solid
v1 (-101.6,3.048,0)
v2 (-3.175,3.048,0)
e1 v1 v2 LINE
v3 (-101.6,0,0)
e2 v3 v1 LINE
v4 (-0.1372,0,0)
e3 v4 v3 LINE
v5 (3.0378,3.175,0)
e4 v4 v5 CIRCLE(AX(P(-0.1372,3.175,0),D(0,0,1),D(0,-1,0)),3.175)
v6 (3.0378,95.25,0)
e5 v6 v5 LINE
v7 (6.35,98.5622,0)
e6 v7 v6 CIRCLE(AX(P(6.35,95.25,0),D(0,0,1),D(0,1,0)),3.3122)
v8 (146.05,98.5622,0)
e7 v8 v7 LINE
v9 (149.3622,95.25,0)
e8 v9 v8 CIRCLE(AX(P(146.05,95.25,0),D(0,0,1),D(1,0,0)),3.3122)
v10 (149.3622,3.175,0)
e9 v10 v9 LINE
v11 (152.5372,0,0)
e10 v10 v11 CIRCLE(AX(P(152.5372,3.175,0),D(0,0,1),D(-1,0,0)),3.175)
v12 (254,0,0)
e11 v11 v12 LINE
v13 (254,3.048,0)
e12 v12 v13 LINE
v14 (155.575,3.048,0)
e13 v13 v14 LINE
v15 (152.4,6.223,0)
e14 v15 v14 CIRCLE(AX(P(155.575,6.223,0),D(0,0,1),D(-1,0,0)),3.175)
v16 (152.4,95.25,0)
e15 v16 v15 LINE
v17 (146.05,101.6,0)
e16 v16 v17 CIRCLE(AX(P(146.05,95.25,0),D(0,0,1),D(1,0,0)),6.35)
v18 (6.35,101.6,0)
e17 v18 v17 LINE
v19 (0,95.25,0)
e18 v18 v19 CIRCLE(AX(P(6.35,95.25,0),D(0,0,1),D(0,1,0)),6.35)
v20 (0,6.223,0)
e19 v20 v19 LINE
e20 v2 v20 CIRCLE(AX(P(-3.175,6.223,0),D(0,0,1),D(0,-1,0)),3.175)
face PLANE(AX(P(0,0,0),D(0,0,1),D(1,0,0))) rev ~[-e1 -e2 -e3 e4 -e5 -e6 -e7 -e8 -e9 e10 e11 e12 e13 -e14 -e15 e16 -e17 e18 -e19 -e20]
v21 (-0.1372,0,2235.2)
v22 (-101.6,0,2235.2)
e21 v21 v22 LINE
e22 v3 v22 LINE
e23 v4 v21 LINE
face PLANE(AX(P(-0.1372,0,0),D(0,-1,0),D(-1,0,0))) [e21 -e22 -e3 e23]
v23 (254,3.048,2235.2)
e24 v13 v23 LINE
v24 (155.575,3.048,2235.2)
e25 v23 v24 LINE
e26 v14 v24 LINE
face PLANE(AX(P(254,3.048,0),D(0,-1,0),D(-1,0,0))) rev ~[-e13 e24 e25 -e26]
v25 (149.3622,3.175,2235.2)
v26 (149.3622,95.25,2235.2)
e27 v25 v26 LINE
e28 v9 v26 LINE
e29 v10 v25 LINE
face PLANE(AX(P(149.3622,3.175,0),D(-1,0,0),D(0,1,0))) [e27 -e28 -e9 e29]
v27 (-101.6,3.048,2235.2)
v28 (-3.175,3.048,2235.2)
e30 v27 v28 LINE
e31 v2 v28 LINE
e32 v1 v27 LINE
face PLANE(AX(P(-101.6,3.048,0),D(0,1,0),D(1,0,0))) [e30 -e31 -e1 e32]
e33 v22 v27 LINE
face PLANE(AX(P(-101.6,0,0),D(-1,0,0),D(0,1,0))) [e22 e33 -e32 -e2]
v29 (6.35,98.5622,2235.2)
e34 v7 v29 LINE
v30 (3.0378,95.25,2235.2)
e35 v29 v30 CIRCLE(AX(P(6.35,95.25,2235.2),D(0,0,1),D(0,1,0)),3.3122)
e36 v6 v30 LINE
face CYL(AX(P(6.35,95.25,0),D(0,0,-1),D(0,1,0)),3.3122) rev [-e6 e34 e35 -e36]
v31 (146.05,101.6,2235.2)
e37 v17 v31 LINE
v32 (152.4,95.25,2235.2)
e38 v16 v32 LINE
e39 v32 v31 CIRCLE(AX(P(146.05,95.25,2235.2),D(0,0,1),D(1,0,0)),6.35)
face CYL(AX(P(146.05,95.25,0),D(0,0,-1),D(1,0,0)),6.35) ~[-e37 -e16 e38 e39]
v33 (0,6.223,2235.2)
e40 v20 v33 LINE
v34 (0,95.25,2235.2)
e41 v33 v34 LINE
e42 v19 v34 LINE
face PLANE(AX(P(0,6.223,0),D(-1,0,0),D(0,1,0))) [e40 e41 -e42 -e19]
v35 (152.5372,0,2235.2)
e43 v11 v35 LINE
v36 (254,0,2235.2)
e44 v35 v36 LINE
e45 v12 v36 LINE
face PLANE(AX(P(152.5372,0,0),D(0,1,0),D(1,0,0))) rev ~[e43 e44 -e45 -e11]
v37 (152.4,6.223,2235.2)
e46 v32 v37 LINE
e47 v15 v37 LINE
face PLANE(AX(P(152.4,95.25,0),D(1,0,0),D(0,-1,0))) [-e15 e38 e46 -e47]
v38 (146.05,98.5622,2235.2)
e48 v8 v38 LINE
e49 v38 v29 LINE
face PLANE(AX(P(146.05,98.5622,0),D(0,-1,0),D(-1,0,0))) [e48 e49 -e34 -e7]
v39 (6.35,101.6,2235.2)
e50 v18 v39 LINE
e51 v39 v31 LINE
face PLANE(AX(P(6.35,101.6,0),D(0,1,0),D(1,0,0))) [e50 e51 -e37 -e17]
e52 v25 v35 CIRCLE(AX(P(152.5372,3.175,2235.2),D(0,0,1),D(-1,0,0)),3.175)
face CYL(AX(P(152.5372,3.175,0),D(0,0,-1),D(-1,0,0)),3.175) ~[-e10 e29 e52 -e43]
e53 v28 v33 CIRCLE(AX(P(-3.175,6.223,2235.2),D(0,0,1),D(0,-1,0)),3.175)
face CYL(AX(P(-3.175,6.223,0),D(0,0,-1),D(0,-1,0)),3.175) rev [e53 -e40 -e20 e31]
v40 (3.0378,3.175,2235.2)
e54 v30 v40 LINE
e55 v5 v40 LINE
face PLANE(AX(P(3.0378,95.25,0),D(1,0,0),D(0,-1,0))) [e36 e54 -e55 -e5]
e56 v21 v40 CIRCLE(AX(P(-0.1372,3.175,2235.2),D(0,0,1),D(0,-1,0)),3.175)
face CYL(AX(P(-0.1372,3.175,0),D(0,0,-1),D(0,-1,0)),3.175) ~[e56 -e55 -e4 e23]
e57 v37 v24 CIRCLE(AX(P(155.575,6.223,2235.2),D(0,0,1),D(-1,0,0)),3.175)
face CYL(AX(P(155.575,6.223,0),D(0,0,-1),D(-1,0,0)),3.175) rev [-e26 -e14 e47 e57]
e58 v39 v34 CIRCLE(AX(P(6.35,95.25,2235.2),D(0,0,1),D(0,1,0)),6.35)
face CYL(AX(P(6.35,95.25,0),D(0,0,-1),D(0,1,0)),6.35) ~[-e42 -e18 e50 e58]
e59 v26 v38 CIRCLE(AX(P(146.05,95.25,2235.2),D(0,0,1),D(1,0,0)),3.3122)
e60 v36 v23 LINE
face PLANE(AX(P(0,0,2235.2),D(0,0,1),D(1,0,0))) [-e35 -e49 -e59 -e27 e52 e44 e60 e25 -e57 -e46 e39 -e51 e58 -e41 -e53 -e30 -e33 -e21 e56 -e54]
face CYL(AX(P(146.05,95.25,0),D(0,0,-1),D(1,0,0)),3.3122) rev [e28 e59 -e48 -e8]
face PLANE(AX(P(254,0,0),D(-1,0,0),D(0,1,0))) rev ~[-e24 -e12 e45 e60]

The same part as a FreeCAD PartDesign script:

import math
import FreeCAD as App
import Part
import Sketcher
Q = App.Units.Quantity

doc = App.newDocument("Part")
body = doc.addObject("PartDesign::Body", "Body")

# Sketch on XY plane
sketch1 = body.newObject("Sketcher::SketchObject", "Sketch")
sketch1.AttachmentSupport = (doc.getObject("XY_Plane"), [""])
sketch1.MapMode = "FlatFace"
sketch1.addGeometry(Part.LineSegment(App.Vector(0, 95.2, 0), App.Vector(0, 6.2, 0)), False)
sketch1.addGeometry(Part.ArcOfCircle(Part.Circle(App.Vector(-3.2, 6.2, 0), App.Vector(0, 0, 1), 3.2), math.radians(-90), math.radians(0)), False)
sketch1.addGeometry(Part.LineSegment(App.Vector(-3.2, 3, 0), App.Vector(-101.6, 3, 0)), False)
sketch1.addGeometry(Part.LineSegment(App.Vector(-101.6, 3, 0), App.Vector(-101.6, 0, 0)), False)
sketch1.addGeometry(Part.LineSegment(App.Vector(-101.6, 0, 0), App.Vector(-0.1, 0, 0)), False)
sketch1.addGeometry(Part.ArcOfCircle(Part.Circle(App.Vector(-0.1, 3.2, 0), App.Vector(0, 0, 1), 3.2), math.radians(-90), math.radians(0)), False)
sketch1.addGeometry(Part.LineSegment(App.Vector(3, 3.2, 0), App.Vector(3, 95.2, 0)), False)
sketch1.addGeometry(Part.ArcOfCircle(Part.Circle(App.Vector(6.3, 95.2, 0), App.Vector(0, 0, 1), 3.3), math.radians(90), math.radians(180)), False)
sketch1.addGeometry(Part.LineSegment(App.Vector(6.3, 98.6, 0), App.Vector(146.1, 98.6, 0)), False)
sketch1.addGeometry(Part.ArcOfCircle(Part.Circle(App.Vector(146.1, 95.2, 0), App.Vector(0, 0, 1), 3.3), math.radians(0), math.radians(90)), False)
sketch1.addGeometry(Part.LineSegment(App.Vector(149.4, 95.2, 0), App.Vector(149.4, 3.2, 0)), False)
sketch1.addGeometry(Part.ArcOfCircle(Part.Circle(App.Vector(152.5, 3.2, 0), App.Vector(0, 0, 1), 3.2), math.radians(180), math.radians(270)), False)
sketch1.addGeometry(Part.LineSegment(App.Vector(152.5, 0, 0), App.Vector(254, 0, 0)), False)
sketch1.addGeometry(Part.LineSegment(App.Vector(254, 0, 0), App.Vector(254, 3, 0)), False)
sketch1.addGeometry(Part.LineSegment(App.Vector(254, 3, 0), App.Vector(155.6, 3, 0)), False)
sketch1.addGeometry(Part.ArcOfCircle(Part.Circle(App.Vector(155.6, 6.2, 0), App.Vector(0, 0, 1), 3.2), math.radians(180), math.radians(270)), False)
sketch1.addGeometry(Part.LineSegment(App.Vector(152.4, 6.2, 0), App.Vector(152.4, 95.2, 0)), False)
sketch1.addGeometry(Part.ArcOfCircle(Part.Circle(App.Vector(146.1, 95.2, 0), App.Vector(0, 0, 1), 6.3), math.radians(0), math.radians(90)), False)
sketch1.addGeometry(Part.LineSegment(App.Vector(146.1, 101.6, 0), App.Vector(6.3, 101.6, 0)), False)
sketch1.addGeometry(Part.ArcOfCircle(Part.Circle(App.Vector(6.3, 95.2, 0), App.Vector(0, 0, 1), 6.3), math.radians(90), math.radians(180)), False)
sketch1.addConstraint(Sketcher.Constraint("Tangent", 0, 2, 1, 2))
sketch1.addConstraint(Sketcher.Constraint("Tangent", 1, 1, 2, 1))
sketch1.addConstraint(Sketcher.Constraint("Coincident", 2, 2, 3, 1))
sketch1.addConstraint(Sketcher.Constraint("Coincident", 3, 2, 4, 1))
sketch1.addConstraint(Sketcher.Constraint("Tangent", 4, 2, 5, 1))
sketch1.addConstraint(Sketcher.Constraint("Tangent", 5, 2, 6, 1))
sketch1.addConstraint(Sketcher.Constraint("Tangent", 6, 2, 7, 2))
sketch1.addConstraint(Sketcher.Constraint("Tangent", 7, 1, 8, 1))
sketch1.addConstraint(Sketcher.Constraint("Tangent", 8, 2, 9, 2))
sketch1.addConstraint(Sketcher.Constraint("Tangent", 9, 1, 10, 1))
sketch1.addConstraint(Sketcher.Constraint("Tangent", 10, 2, 11, 1))
sketch1.addConstraint(Sketcher.Constraint("Tangent", 11, 2, 12, 1))
sketch1.addConstraint(Sketcher.Constraint("Coincident", 12, 2, 13, 1))
sketch1.addConstraint(Sketcher.Constraint("Coincident", 13, 2, 14, 1))
sketch1.addConstraint(Sketcher.Constraint("Tangent", 14, 2, 15, 2))
sketch1.addConstraint(Sketcher.Constraint("Tangent", 15, 1, 16, 1))
sketch1.addConstraint(Sketcher.Constraint("Tangent", 16, 2, 17, 1))
sketch1.addConstraint(Sketcher.Constraint("Tangent", 17, 2, 18, 1))
sketch1.addConstraint(Sketcher.Constraint("Tangent", 18, 2, 19, 1))
sketch1.addConstraint(Sketcher.Constraint("Tangent", 19, 2, 0, 1))
sketch1.addConstraint(Sketcher.Constraint("Vertical", 0))
sketch1.addConstraint(Sketcher.Constraint("Horizontal", 2))
sketch1.addConstraint(Sketcher.Constraint("Vertical", 3))
sketch1.addConstraint(Sketcher.Constraint("Horizontal", 4))
sketch1.addConstraint(Sketcher.Constraint("Vertical", 6))
sketch1.addConstraint(Sketcher.Constraint("Horizontal", 8))
sketch1.addConstraint(Sketcher.Constraint("Vertical", 10))
sketch1.addConstraint(Sketcher.Constraint("Horizontal", 12))
sketch1.addConstraint(Sketcher.Constraint("Vertical", 13))
sketch1.addConstraint(Sketcher.Constraint("Horizontal", 14))
sketch1.addConstraint(Sketcher.Constraint("Vertical", 16))
sketch1.addConstraint(Sketcher.Constraint("Horizontal", 18))
sketch1.addConstraint(Sketcher.Constraint("Coincident", 17, 3, 9, 3))
sketch1.addConstraint(Sketcher.Constraint("Coincident", 19, 3, 7, 3))
sketch1.addConstraint(Sketcher.Constraint("Equal", 1, 5))
sketch1.addConstraint(Sketcher.Constraint("Equal", 7, 9))
sketch1.addConstraint(Sketcher.Constraint("Equal", 5, 11))
sketch1.addConstraint(Sketcher.Constraint("Equal", 11, 15))
sketch1.addConstraint(Sketcher.Constraint("PointOnObject", 0, 2, -2))
sketch1.addConstraint(Sketcher.Constraint("PointOnObject", 3, 2, -1))
sketch1.addConstraint(Sketcher.Constraint("PointOnObject", 11, 2, -1))
sketch1.addConstraint(Sketcher.Constraint("Horizontal", 1, 3, 15, 3))
sketch1.addConstraint(Sketcher.Constraint("Equal", 4, 12))
sketch1.addConstraint(Sketcher.Constraint("Radius", 17, Q("0.25 in")))
sketch1.addConstraint(Sketcher.Constraint("DistanceX", 2, 2, -1, 1, Q("4 in")))
sketch1.addConstraint(Sketcher.Constraint("DistanceX", -1, 1, 15, 1, Q("6 in")))
sketch1.addConstraint(Sketcher.Constraint("DistanceY", -1, 1, 17, 2, Q("4 in")))
sketch1.addConstraint(Sketcher.Constraint("Radius", 1, Q("0.125 in")))
sketch1.addConstraint(Sketcher.Constraint("DistanceY", 3, 2, 3, 1, Q("0.12 in")))
sketch1.addConstraint(Sketcher.Constraint("DistanceX", -1, 1, 5, 2, Q("0.1196 in")))
pad1 = body.newObject("PartDesign::Pad", "Pad")
pad1.Profile = sketch1
pad1.Length = Q("88 in")

doc.recompute()
